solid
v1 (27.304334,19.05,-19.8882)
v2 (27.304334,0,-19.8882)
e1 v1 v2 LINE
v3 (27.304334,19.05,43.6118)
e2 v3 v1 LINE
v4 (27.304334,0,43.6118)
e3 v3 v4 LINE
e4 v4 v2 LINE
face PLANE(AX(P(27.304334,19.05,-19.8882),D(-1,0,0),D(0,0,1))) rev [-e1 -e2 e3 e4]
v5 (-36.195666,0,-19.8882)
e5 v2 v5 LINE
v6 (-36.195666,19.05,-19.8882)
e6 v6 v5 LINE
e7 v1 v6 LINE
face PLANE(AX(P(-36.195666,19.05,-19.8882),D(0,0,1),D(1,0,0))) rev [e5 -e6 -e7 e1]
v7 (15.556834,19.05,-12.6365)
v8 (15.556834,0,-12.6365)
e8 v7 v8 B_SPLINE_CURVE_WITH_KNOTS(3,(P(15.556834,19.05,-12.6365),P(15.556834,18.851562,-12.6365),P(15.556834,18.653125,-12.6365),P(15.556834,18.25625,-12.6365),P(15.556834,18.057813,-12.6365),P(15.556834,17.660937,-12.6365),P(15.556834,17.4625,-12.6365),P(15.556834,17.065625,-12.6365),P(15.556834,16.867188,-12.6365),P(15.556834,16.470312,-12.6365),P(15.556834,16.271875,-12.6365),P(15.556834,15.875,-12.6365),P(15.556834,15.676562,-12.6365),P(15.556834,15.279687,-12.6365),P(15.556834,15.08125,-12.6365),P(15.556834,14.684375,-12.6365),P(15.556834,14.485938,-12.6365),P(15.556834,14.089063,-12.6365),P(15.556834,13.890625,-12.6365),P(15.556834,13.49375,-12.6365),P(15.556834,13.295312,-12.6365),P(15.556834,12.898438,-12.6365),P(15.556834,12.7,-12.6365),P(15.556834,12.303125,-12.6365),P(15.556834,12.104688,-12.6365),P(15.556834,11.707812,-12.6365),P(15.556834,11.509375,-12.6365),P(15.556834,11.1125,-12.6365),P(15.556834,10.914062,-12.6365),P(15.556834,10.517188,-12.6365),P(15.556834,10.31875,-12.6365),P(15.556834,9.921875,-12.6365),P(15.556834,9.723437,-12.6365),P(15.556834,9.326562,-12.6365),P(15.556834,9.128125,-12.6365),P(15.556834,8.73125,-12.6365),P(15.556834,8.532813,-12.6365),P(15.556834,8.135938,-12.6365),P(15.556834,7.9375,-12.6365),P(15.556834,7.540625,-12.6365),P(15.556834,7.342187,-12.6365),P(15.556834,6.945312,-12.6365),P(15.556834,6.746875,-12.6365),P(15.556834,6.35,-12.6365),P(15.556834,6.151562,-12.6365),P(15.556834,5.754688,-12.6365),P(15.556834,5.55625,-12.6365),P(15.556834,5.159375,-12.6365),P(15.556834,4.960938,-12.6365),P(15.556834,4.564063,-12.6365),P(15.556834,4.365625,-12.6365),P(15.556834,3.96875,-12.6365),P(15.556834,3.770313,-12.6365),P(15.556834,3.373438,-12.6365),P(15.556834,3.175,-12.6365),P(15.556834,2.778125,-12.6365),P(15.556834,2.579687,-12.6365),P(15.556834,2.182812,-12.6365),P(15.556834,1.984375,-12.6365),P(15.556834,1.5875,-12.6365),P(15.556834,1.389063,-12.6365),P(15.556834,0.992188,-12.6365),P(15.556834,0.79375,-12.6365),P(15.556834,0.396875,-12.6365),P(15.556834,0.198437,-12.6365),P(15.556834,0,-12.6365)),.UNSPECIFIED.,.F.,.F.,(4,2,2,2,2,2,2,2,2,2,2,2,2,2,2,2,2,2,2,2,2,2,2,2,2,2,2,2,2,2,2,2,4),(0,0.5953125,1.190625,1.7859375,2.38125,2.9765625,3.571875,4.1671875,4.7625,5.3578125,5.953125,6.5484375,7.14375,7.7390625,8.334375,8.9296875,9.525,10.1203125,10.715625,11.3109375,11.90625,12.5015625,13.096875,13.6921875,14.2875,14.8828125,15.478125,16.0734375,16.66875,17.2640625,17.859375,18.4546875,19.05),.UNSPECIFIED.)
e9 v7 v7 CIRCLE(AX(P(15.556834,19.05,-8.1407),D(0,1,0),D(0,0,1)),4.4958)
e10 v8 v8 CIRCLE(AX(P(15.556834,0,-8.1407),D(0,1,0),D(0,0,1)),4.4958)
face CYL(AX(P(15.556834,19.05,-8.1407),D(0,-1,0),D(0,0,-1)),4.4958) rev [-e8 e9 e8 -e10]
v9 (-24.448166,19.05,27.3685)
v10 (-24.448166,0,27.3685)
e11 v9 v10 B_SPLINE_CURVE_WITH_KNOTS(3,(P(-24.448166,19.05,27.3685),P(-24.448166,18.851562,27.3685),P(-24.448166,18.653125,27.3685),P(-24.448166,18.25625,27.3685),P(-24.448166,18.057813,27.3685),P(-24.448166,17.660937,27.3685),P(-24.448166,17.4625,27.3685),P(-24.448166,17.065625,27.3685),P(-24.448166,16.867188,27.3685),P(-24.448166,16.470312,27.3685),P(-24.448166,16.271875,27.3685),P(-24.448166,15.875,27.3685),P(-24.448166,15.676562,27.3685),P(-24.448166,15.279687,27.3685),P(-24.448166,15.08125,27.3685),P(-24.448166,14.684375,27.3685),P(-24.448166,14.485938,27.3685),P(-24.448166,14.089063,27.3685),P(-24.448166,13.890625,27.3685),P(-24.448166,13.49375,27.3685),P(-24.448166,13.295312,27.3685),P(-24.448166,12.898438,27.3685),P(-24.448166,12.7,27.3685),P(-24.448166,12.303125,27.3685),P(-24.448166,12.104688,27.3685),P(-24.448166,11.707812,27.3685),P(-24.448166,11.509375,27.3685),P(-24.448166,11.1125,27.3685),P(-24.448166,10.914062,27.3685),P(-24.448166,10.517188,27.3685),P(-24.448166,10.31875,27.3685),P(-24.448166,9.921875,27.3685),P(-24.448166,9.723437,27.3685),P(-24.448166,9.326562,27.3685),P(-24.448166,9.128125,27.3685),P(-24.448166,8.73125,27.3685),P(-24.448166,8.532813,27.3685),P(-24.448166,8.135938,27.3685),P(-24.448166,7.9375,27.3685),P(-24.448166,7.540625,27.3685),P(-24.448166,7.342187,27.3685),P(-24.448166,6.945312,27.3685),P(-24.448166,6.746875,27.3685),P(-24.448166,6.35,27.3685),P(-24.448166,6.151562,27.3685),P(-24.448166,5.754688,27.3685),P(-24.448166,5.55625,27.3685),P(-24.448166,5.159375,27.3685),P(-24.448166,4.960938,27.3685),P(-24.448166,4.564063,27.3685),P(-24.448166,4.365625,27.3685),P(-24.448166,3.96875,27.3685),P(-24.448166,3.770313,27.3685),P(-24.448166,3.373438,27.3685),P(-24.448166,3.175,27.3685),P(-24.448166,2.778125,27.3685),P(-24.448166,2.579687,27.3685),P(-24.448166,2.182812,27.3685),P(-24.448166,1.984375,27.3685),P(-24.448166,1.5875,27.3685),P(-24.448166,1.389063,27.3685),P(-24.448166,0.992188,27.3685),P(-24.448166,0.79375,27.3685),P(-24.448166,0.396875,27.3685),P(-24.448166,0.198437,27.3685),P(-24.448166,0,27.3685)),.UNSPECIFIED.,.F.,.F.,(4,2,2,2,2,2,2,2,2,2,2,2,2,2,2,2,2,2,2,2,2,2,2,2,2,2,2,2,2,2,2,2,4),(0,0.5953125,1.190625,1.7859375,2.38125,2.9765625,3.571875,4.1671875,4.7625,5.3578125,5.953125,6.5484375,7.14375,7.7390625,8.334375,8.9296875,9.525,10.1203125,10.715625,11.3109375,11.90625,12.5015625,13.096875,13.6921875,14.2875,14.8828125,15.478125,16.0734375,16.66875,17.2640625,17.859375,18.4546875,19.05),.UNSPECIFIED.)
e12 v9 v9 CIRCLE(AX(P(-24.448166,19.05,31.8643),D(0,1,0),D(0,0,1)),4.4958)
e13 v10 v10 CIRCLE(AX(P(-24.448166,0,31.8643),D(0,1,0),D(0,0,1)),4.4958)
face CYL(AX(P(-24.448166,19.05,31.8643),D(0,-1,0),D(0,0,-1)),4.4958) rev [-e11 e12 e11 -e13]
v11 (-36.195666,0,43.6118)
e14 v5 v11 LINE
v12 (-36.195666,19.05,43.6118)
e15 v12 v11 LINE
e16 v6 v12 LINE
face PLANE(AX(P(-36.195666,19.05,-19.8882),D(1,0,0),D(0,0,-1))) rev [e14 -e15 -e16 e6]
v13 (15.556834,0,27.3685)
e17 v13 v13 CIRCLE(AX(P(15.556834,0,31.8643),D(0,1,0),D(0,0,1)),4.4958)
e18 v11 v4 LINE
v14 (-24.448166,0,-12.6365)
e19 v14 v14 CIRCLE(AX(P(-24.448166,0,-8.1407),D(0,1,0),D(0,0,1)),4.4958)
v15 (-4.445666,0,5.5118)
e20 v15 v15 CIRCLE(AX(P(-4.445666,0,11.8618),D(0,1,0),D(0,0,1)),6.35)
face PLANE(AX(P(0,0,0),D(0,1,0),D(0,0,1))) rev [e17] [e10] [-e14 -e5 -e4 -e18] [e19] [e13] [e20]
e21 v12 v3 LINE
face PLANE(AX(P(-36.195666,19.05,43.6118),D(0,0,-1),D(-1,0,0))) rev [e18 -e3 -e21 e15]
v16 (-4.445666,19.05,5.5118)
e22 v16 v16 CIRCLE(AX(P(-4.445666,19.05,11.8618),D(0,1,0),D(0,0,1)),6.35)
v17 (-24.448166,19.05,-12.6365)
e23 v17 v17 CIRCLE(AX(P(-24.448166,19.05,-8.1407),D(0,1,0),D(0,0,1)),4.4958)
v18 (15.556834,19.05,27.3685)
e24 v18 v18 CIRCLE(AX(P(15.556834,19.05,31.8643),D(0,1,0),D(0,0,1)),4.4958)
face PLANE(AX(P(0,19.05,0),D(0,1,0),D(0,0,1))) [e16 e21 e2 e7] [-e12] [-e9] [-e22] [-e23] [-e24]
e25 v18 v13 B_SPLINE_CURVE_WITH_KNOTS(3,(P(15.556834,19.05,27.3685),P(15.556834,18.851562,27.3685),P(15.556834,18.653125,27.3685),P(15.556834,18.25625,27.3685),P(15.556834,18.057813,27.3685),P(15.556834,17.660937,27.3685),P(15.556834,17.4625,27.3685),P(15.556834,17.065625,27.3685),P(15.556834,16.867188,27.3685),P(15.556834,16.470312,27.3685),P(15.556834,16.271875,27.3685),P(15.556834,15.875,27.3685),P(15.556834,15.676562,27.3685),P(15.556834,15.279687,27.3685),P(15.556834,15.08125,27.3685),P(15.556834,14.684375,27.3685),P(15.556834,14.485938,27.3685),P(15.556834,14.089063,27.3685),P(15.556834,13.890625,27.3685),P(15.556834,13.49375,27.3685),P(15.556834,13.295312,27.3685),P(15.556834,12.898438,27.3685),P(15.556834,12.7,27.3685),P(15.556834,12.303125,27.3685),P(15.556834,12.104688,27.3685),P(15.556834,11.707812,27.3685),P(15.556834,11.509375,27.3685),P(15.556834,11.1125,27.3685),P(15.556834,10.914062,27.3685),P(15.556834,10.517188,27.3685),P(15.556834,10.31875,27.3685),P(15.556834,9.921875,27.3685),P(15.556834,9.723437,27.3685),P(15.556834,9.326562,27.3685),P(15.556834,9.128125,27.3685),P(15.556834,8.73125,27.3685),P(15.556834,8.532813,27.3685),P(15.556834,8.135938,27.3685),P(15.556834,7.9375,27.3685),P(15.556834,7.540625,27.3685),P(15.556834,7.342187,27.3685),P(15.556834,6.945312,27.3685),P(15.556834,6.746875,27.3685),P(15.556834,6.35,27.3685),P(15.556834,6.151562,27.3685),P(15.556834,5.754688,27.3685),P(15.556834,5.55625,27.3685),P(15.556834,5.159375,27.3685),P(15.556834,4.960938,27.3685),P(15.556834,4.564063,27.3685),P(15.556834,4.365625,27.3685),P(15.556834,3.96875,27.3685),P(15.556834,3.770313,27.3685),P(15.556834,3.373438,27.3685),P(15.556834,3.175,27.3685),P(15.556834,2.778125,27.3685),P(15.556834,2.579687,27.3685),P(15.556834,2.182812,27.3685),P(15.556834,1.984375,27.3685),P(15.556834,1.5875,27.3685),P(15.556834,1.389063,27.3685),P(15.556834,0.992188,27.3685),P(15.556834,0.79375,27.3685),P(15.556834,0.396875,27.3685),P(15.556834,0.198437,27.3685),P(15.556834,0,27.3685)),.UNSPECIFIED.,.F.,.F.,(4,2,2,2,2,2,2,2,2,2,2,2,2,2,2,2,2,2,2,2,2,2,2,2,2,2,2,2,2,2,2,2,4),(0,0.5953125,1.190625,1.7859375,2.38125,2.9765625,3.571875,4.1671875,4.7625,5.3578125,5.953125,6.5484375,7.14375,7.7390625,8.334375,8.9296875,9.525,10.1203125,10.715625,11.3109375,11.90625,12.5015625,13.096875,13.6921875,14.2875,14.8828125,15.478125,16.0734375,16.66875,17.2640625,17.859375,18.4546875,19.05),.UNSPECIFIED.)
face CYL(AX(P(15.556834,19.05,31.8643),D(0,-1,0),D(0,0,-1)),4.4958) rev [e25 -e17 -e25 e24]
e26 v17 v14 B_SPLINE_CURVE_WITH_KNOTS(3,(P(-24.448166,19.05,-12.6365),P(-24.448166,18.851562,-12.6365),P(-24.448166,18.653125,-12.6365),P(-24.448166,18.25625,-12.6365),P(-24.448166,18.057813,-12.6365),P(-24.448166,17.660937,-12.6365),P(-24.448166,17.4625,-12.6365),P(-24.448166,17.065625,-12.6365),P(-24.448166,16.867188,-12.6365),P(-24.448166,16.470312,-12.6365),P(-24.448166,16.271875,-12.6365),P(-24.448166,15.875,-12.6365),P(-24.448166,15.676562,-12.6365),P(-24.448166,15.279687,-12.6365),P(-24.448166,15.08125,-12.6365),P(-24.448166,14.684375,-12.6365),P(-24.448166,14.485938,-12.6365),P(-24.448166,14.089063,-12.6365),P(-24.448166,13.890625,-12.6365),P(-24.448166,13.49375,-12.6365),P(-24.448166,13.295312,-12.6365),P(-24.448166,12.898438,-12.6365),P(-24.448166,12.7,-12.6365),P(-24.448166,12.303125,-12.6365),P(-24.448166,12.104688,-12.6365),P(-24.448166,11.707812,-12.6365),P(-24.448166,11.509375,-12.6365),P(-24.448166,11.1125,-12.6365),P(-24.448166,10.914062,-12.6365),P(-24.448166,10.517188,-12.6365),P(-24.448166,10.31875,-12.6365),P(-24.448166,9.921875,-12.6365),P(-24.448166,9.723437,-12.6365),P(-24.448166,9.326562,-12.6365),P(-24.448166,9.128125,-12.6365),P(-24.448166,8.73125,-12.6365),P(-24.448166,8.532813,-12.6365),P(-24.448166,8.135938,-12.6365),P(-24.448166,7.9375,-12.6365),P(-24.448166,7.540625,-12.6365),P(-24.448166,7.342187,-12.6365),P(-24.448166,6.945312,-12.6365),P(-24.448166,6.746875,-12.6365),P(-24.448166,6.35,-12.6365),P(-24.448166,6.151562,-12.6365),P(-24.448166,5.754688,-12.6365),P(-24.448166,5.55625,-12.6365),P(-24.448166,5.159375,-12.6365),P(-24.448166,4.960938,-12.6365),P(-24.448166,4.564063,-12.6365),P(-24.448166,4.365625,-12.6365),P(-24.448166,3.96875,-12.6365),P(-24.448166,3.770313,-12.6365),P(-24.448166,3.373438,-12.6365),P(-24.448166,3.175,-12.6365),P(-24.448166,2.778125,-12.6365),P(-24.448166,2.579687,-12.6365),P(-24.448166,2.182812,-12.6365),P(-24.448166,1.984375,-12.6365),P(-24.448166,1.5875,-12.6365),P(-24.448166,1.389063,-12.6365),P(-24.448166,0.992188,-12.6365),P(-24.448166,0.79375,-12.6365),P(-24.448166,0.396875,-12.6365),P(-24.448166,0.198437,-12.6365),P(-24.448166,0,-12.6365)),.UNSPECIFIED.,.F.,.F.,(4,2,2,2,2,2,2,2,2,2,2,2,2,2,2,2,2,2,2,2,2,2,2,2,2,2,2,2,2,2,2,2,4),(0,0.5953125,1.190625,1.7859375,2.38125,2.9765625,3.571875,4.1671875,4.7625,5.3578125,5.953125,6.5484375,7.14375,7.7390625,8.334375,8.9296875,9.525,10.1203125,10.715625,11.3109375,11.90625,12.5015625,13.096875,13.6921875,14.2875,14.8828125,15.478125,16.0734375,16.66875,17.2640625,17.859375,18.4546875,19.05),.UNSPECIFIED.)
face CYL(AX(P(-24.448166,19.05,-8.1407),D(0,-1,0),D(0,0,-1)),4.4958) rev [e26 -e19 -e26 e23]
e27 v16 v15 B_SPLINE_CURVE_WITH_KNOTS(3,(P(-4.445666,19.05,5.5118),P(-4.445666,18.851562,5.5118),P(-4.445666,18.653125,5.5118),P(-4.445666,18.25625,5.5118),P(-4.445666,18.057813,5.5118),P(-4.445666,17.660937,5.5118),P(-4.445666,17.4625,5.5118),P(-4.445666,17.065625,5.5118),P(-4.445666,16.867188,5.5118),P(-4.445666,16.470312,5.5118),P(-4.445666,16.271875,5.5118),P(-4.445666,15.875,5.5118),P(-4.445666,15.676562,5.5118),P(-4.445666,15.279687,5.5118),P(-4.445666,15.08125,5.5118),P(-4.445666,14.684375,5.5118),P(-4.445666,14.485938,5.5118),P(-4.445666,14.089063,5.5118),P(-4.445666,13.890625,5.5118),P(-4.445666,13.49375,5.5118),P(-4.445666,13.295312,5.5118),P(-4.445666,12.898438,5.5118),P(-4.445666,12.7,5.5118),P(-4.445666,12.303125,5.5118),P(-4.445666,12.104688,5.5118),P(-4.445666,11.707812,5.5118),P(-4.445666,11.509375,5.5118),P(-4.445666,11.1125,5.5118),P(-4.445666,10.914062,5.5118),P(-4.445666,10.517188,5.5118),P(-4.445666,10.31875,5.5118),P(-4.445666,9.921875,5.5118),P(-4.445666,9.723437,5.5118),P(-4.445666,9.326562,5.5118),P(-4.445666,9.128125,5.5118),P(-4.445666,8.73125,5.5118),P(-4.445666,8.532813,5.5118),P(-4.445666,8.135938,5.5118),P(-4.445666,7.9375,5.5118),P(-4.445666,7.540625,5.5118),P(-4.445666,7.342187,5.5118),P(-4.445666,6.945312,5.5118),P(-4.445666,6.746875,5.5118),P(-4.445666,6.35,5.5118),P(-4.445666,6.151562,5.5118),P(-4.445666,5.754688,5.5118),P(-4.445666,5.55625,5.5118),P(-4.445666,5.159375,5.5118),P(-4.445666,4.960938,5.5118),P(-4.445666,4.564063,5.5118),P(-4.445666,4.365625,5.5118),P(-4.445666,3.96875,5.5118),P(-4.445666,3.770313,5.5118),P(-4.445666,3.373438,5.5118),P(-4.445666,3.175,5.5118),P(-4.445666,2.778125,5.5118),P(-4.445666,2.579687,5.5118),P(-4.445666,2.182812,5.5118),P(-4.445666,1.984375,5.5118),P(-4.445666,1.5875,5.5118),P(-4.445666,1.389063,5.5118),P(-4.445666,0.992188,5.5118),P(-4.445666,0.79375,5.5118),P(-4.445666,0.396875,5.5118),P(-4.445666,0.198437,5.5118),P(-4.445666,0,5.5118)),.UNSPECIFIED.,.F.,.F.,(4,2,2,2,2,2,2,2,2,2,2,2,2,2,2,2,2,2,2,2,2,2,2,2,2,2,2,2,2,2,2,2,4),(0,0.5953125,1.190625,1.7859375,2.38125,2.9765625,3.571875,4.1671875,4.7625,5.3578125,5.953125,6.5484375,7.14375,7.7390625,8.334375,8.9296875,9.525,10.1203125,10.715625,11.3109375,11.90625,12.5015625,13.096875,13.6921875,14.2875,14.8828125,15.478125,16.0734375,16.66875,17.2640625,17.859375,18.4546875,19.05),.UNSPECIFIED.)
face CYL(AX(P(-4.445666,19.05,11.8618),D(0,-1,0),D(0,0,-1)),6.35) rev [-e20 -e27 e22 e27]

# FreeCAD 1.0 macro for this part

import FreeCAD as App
import Part
import Sketcher

V = App.Vector
Q = App.Units.Quantity


def add_polygon(sketch, points):
    """Adds a closed chain of lines whose ends are joined by coincident constraints."""
    first, n = sketch.GeometryCount, len(points)
    for a, b in zip(points, points[1:] + points[:1]):
        sketch.addGeometry(Part.LineSegment(App.Vector(*a, 0), App.Vector(*b, 0)), False)
    for i in range(n):
        sketch.addConstraint(Sketcher.Constraint("Coincident", first + i, 2, first + (i + 1) % n, 1))

doc = App.newDocument("Part")
body = doc.addObject("PartDesign::Body", "Body")

# Sketch on XZ plane
sketch1 = body.newObject("Sketcher::SketchObject", "Sketch")
sketch1.AttachmentSupport = (doc.getObject("XZ_Plane"), [""])
sketch1.MapMode = "FlatFace"
add_polygon(sketch1, [(-36, -20), (-36, 44), (27, 44), (27, -20)])  # lines 0-3
sketch1.addGeometry(Part.Circle(V(-4, 12, 0), V(0, 0, 1), 6), False)  # 4
sketch1.addConstraint(Sketcher.Constraint("Vertical", 0))
sketch1.addConstraint(Sketcher.Constraint("Horizontal", 1))
sketch1.addConstraint(Sketcher.Constraint("Vertical", 2))
sketch1.addConstraint(Sketcher.Constraint("Horizontal", 3))
sketch1.addConstraint(Sketcher.Constraint("Equal", 3, 0))
sketch1.addConstraint(Sketcher.Constraint("Diameter", 4, Q("0.5 in")))
sketch1.addConstraint(Sketcher.Constraint("DistanceX", 1, 1, 1, 2, Q("2.5 in")))
sketch1.addConstraint(Sketcher.Constraint("DistanceX", 0, 2, 4, 3, Q("1.25 in")))
sketch1.addConstraint(Sketcher.Constraint("DistanceY", 4, 3, 0, 2, Q("1.25 in")))
sketch1.addConstraint(Sketcher.Constraint("DistanceY", -1, 1, 4, 3, Q("0.467 in")))
sketch1.addConstraint(Sketcher.Constraint("DistanceX", 4, 3, -1, 1, Q("4.445666 mm")))
pad1 = body.newObject("PartDesign::Pad", "Pad")
pad1.Profile = sketch1
pad1.Length = Q("0.75 in")
pad1.Reversed = True

# Sketch on XZ plane
sketch2 = body.newObject("Sketcher::SketchObject", "Sketch001")
sketch2.AttachmentSupport = (doc.getObject("XZ_Plane"), [""])
sketch2.MapMode = "FlatFace"
sketch2.addGeometry(Part.Circle(V(-24.4, -8.1, 0), V(0, 0, 1), 4.5), False)
sketch2.addGeometry(Part.Circle(V(15.6, -8.1, 0), V(0, 0, 1), 4.5), False)
sketch2.addGeometry(Part.Circle(V(15.6, 31.9, 0), V(0, 0, 1), 4.5), False)
sketch2.addGeometry(Part.Circle(V(-24.4, 31.9, 0), V(0, 0, 1), 4.5), False)
sketch2.addConstraint(Sketcher.Constraint("Equal", 0, 1))
sketch2.addConstraint(Sketcher.Constraint("Equal", 1, 2))
sketch2.addConstraint(Sketcher.Constraint("Equal", 2, 3))
sketch2.addConstraint(Sketcher.Constraint("Horizontal", 0, 3, 1, 3))
sketch2.addConstraint(Sketcher.Constraint("Horizontal", 2, 3, 3, 3))
sketch2.addConstraint(Sketcher.Constraint("Vertical", 1, 3, 2, 3))
sketch2.addConstraint(Sketcher.Constraint("Vertical", 0, 3, 3, 3))
sketch2.addConstraint(Sketcher.Constraint("Diameter", 0, Q("0.354 in")))
sketch2.addConstraint(Sketcher.Constraint("DistanceX", 0, 3, 1, 3, Q("1.575 in")))
sketch2.addConstraint(Sketcher.Constraint("DistanceY", 1, 3, 2, 3, Q("1.575 in")))
sketch2.addConstraint(Sketcher.Constraint("DistanceY", 0, 3, -1, 1, Q("0.3205 in")))
sketch2.addConstraint(Sketcher.Constraint("DistanceX", 0, 3, -1, 1, Q("24.448166 mm")))
pocket1 = body.newObject("PartDesign::Pocket", "Pocket")
pocket1.Profile = sketch2
pocket1.Length = Q("0.75 in")

doc.recompute()
